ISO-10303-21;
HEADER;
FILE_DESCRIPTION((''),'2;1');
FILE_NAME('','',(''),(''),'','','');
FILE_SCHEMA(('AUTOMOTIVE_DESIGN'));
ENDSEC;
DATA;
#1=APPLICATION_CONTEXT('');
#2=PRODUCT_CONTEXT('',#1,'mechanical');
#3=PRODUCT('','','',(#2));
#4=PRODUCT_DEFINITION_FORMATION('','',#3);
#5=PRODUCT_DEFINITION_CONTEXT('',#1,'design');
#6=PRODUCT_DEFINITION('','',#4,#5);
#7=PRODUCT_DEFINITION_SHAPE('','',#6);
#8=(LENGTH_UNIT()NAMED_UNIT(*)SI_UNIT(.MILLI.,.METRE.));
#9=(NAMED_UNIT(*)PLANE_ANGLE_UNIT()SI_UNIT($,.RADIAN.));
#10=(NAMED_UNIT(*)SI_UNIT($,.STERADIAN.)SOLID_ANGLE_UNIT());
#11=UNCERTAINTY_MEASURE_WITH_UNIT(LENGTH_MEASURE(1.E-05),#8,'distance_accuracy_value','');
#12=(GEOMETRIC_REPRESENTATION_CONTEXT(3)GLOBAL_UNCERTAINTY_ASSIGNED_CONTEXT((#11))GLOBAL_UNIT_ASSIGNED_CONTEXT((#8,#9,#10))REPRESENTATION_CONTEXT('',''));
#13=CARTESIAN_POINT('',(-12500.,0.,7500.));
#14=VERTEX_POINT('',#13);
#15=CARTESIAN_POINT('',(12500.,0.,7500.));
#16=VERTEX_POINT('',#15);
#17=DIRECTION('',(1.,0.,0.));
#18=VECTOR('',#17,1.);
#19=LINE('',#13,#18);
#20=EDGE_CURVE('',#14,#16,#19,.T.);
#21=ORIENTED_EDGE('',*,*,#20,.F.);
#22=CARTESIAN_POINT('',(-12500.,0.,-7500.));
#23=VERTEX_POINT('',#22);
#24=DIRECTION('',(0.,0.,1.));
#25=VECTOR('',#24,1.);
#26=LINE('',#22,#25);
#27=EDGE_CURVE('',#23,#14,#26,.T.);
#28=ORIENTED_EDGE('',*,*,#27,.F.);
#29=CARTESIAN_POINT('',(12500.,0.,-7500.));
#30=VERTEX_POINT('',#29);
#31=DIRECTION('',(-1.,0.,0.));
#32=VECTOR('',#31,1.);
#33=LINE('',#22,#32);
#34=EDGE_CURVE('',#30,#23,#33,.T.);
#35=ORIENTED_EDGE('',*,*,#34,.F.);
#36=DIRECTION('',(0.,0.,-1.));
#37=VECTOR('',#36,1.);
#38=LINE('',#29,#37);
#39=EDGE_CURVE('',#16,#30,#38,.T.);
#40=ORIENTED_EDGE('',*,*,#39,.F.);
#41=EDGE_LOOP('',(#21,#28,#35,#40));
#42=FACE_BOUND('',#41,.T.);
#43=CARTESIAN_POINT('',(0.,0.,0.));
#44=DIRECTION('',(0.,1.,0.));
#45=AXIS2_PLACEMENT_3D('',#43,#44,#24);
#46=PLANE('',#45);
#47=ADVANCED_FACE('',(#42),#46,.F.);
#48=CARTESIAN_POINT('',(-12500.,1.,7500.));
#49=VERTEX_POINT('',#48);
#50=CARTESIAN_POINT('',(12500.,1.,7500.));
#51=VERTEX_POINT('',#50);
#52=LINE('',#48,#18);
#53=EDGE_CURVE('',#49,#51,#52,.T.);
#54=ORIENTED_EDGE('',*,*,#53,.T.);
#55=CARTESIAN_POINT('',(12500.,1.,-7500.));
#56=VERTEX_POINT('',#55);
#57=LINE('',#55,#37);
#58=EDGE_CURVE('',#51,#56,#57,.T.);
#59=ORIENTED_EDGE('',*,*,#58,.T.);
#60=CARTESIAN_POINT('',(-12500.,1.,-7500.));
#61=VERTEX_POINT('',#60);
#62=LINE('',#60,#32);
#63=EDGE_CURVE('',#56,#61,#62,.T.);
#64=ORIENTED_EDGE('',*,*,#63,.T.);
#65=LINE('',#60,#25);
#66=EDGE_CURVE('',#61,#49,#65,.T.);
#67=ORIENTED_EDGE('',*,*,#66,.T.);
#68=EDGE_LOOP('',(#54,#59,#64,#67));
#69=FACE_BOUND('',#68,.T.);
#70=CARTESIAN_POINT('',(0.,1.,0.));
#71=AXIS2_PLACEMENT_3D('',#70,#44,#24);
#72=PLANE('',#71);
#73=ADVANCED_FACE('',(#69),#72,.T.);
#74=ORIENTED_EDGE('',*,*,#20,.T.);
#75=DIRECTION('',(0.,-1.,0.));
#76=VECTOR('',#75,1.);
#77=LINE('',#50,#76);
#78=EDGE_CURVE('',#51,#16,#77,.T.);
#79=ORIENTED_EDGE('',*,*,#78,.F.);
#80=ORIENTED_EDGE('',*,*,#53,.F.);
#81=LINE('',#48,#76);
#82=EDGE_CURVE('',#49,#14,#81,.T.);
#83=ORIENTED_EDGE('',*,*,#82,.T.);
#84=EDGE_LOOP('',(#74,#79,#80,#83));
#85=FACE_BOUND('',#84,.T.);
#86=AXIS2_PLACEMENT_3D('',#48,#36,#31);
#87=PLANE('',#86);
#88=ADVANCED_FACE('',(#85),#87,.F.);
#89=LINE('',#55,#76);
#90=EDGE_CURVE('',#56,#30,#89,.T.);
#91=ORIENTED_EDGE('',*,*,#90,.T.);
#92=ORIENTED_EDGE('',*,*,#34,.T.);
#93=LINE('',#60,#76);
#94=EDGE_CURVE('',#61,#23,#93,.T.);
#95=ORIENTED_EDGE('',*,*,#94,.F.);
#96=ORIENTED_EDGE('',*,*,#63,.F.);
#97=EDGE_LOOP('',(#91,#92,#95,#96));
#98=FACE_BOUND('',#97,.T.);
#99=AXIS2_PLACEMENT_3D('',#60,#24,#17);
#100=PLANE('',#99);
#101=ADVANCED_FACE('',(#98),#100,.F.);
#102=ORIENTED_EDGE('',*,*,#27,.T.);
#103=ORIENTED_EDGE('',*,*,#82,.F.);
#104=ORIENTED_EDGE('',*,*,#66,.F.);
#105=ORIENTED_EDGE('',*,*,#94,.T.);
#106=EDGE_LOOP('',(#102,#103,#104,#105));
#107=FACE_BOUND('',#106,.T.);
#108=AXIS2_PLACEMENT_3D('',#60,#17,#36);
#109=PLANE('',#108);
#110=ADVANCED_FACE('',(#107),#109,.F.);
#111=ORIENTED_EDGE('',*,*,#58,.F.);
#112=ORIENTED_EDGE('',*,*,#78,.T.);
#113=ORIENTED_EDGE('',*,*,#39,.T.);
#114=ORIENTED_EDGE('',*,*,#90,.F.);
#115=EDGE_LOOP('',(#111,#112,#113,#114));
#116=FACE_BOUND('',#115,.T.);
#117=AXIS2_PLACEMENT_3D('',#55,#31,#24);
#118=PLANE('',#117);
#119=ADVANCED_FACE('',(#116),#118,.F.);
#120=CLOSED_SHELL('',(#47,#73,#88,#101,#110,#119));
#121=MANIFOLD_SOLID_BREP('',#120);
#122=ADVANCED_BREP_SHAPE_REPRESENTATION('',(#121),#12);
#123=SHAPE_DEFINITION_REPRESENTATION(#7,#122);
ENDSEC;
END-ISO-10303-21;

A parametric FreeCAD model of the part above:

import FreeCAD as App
import Part
import Sketcher

V = App.Vector


def add_polygon(sketch, points):
    """Adds a closed chain of lines whose ends are joined by coincident constraints."""
    first, n = sketch.GeometryCount, len(points)
    for a, b in zip(points, points[1:] + points[:1]):
        sketch.addGeometry(Part.LineSegment(App.Vector(*a, 0), App.Vector(*b, 0)), False)
    for i in range(n):
        sketch.addConstraint(Sketcher.Constraint("Coincident", first + i, 2, first + (i + 1) % n, 1))

doc = App.newDocument("Part")
body = doc.addObject("PartDesign::Body", "Body")

# Sketch on XZ plane
sketch1 = doc.addObject("Sketcher::SketchObject", "Sketch")
body.addObject(sketch1)
sketch1.AttachmentSupport = (doc.XZ_Plane, [""])
sketch1.MapMode = "FlatFace"
add_polygon(sketch1, [(-12500, -7500), (-12500, 7500), (12500, 7500), (12500, -7500)])  # lines 0-3
sketch1.addConstraint([
    Sketcher.Constraint("Vertical", 0),
    Sketcher.Constraint("Horizontal", 1),
    Sketcher.Constraint("Vertical", 2),
    Sketcher.Constraint("Horizontal", 3),
    Sketcher.Constraint("Symmetric", 0, 2, 2, 2, -1, 1),
    Sketcher.Constraint("DistanceX", 1, 1, 1, 2, 25000.0),
    Sketcher.Constraint("DistanceY", 0, 1, 0, 2, 15000.0),
])
pad1 = doc.addObject("PartDesign::Pad", "Pad")
body.addObject(pad1)
pad1.Profile = sketch1
pad1.Length = 1
pad1.Reversed = True

doc.recompute()
